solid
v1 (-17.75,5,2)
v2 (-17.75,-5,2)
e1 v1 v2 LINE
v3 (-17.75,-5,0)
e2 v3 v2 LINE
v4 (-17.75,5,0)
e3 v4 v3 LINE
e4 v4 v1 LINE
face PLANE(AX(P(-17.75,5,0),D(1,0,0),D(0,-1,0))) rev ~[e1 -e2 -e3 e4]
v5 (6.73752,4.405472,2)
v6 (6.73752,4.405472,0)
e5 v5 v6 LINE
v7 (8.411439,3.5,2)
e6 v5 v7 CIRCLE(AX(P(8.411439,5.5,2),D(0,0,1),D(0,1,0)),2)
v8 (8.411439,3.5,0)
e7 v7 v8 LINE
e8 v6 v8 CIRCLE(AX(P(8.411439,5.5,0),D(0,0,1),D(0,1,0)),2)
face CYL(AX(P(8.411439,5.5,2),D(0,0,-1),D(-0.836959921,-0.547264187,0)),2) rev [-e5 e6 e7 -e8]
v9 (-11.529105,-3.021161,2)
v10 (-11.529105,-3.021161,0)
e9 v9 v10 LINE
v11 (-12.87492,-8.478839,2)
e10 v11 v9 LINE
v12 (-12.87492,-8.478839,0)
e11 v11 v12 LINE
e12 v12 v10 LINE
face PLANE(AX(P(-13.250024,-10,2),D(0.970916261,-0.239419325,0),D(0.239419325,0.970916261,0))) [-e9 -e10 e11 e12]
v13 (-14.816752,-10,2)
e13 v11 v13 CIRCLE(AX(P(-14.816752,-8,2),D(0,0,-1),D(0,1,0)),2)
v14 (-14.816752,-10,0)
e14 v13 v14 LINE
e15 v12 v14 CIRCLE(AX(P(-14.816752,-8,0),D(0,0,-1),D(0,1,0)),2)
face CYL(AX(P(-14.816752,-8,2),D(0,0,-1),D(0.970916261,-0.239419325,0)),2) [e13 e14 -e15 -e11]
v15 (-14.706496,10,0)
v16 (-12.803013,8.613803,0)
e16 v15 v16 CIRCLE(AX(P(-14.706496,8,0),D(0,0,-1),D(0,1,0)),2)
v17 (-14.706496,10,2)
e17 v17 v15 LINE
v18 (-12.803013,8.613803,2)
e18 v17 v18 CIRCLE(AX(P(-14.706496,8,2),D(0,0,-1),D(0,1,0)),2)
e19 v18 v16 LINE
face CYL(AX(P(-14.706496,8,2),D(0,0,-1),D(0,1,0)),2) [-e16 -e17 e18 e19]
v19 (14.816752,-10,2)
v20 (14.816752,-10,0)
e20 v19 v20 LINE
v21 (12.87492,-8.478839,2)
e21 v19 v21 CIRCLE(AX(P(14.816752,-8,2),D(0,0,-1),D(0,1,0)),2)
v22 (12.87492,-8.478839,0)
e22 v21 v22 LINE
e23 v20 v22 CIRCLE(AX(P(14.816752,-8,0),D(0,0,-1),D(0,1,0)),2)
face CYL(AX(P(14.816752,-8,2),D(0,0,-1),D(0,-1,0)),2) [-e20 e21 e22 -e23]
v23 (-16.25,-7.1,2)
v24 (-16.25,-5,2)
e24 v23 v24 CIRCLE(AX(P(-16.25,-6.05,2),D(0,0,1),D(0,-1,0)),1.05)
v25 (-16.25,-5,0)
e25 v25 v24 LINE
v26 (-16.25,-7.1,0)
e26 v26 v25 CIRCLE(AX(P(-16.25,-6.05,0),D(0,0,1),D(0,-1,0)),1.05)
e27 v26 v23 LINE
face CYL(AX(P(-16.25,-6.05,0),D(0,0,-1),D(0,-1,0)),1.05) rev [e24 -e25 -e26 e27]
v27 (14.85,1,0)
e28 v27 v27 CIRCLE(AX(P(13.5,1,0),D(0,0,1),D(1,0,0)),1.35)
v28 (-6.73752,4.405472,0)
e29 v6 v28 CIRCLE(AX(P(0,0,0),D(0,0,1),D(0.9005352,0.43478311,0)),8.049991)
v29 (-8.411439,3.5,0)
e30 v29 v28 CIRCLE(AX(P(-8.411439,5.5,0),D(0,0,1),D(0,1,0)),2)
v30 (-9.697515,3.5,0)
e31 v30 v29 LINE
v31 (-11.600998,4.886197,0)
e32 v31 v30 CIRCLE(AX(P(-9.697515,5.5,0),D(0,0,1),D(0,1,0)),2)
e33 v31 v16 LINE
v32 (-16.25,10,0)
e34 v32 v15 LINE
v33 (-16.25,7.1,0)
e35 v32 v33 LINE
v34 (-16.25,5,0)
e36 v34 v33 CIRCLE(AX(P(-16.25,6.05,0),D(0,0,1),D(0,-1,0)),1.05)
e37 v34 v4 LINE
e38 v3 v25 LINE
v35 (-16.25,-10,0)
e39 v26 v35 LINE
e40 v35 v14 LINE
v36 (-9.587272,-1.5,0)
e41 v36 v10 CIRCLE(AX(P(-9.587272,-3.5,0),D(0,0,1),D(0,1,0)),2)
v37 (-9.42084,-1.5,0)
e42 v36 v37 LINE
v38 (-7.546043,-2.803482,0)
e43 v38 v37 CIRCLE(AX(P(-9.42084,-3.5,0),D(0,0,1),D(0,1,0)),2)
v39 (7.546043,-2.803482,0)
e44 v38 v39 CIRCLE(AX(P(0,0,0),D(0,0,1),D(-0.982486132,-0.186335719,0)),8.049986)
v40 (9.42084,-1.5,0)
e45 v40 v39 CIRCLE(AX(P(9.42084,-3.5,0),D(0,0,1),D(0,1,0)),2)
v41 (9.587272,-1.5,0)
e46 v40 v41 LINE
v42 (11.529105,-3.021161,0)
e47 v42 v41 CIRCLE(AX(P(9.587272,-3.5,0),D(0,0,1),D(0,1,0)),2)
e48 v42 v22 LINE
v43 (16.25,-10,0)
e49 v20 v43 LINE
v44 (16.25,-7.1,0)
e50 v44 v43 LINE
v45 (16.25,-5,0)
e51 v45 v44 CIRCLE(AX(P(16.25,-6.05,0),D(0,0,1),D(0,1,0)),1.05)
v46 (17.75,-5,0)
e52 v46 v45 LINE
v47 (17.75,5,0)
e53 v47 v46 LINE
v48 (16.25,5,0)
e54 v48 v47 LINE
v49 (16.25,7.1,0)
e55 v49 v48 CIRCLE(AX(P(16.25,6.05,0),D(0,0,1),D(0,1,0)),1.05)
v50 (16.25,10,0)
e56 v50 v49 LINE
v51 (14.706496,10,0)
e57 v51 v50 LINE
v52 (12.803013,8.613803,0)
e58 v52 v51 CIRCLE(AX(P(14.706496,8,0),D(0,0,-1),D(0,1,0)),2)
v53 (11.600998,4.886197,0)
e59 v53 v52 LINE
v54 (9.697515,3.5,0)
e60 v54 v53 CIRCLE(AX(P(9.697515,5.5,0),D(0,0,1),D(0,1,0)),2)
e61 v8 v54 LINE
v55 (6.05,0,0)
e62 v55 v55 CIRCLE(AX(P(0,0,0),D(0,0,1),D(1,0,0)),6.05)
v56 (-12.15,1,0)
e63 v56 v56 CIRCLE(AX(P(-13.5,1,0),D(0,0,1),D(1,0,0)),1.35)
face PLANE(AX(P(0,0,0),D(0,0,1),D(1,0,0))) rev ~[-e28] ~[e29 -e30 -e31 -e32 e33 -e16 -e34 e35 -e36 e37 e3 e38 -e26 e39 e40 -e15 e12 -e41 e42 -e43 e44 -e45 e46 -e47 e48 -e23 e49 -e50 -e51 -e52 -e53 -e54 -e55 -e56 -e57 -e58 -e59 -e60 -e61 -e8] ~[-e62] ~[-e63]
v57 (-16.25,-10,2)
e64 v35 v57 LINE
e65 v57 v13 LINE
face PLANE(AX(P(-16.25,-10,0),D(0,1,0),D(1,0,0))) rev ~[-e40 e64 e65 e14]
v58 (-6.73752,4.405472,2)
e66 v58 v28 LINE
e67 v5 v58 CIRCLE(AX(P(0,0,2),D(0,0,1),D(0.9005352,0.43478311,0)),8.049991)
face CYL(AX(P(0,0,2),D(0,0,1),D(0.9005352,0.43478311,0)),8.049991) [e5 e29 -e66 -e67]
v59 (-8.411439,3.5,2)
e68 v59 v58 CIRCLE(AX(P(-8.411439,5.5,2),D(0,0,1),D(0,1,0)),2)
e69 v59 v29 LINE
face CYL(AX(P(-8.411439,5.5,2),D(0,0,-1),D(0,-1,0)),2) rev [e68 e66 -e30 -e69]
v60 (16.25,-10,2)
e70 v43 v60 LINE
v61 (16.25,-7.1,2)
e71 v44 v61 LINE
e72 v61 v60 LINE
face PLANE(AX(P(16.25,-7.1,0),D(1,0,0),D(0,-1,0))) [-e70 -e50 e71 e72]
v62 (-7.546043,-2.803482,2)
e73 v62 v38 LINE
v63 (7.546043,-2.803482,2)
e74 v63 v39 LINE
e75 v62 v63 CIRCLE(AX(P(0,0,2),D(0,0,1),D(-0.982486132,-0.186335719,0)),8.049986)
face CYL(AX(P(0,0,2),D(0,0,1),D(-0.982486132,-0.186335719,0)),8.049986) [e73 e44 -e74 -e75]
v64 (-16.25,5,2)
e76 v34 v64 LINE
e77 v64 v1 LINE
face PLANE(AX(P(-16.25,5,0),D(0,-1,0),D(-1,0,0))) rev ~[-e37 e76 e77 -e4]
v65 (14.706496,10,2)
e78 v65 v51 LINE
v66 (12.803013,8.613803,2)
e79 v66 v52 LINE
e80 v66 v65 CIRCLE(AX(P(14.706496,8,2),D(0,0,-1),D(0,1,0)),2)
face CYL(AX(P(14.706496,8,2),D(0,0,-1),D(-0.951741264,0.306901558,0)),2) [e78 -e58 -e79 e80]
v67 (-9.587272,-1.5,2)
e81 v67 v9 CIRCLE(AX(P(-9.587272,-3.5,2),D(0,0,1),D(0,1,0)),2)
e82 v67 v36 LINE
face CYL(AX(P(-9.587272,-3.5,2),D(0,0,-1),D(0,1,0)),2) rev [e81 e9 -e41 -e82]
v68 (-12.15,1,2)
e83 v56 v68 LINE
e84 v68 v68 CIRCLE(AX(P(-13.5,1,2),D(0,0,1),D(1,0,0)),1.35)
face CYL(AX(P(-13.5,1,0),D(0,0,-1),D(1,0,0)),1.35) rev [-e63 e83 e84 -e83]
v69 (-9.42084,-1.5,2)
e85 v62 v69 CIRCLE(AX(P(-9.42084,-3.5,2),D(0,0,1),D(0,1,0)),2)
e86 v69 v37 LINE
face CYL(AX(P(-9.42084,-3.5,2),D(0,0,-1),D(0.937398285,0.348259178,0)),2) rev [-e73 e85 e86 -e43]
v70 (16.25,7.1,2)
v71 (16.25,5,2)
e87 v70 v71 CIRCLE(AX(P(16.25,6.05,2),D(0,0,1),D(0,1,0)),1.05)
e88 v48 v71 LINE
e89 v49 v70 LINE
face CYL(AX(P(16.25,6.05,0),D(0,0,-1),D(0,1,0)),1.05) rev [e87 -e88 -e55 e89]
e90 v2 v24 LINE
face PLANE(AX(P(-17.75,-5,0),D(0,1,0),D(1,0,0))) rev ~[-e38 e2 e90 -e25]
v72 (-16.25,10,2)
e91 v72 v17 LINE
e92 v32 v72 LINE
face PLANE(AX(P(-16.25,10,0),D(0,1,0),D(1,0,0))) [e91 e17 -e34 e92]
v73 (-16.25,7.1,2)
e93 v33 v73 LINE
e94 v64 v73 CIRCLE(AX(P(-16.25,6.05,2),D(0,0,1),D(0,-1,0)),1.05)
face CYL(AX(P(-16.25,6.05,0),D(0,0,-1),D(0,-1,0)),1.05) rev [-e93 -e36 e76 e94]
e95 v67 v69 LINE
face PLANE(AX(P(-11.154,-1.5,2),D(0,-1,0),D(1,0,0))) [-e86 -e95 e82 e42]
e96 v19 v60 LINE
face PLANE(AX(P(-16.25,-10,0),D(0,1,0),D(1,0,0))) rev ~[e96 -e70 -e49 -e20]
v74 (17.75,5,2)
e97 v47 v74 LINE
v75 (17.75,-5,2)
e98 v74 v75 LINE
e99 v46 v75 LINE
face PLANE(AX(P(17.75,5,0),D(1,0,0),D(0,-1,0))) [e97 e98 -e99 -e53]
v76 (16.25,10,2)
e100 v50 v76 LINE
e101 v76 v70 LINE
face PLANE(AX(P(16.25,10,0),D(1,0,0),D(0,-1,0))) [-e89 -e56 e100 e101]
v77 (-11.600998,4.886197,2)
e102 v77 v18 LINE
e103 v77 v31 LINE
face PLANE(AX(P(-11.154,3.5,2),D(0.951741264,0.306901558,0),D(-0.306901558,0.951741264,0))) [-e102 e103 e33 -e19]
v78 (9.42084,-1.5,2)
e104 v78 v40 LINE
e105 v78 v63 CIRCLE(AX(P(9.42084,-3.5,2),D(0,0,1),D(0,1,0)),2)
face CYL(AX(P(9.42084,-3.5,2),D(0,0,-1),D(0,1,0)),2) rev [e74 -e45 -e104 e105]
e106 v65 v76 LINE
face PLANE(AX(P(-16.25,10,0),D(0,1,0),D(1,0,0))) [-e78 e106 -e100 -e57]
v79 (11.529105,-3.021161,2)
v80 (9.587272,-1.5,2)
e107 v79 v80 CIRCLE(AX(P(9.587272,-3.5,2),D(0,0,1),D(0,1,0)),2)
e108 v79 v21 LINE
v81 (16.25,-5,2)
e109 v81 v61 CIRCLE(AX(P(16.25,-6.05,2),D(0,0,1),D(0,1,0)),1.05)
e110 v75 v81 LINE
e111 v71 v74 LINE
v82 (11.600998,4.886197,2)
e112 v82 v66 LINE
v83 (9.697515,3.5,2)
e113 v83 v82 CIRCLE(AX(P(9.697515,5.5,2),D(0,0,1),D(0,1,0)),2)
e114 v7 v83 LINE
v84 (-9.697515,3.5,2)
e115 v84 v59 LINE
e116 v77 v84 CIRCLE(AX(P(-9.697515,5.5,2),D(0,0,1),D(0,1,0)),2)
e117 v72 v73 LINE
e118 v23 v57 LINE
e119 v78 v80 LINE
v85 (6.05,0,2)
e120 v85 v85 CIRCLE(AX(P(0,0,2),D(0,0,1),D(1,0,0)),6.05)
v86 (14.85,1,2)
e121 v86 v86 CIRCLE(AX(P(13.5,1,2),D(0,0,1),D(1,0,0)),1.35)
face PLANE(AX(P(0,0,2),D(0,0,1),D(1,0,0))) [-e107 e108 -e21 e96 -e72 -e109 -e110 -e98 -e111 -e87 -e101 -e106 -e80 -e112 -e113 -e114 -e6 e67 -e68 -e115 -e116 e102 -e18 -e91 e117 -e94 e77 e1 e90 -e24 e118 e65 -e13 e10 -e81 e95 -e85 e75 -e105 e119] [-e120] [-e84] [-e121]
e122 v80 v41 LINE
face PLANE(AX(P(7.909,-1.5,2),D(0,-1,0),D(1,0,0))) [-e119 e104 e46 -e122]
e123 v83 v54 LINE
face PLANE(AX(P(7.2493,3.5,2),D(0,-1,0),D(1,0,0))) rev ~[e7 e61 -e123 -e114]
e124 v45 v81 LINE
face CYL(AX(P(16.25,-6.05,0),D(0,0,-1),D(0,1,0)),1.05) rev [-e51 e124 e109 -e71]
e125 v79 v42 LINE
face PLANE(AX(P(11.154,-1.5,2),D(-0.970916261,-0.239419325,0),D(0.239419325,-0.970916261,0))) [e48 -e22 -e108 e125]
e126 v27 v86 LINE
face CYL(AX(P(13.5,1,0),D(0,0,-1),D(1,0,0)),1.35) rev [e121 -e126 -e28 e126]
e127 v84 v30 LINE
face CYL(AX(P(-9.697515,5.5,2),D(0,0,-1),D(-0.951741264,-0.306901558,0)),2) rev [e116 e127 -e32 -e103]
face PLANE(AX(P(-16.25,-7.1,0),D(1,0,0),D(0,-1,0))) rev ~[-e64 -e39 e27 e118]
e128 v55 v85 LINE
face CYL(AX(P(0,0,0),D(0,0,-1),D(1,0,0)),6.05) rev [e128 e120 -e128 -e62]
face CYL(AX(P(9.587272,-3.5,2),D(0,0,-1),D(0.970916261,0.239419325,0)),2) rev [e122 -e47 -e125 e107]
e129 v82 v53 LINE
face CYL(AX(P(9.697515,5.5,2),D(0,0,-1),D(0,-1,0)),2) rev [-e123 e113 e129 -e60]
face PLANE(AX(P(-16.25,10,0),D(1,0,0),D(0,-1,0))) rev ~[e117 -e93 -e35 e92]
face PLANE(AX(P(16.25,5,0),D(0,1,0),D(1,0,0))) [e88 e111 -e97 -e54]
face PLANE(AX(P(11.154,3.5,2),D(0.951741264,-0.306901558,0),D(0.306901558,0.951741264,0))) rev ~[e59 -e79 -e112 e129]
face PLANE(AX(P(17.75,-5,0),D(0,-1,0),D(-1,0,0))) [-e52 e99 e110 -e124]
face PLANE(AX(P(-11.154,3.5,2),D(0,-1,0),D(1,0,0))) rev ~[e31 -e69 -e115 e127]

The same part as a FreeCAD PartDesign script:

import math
import FreeCAD as App
import Part
import Sketcher
Q = App.Units.Quantity


def edges_at(feature, points):
    """Names of the edges that pass closest to the given points."""
    edges = feature.Shape.Edges
    near = lambda p: min(range(len(edges)), key=lambda i: edges[i].distToShape(Part.Vertex(*p))[0])
    return sorted({f"Edge{near(p) + 1}" for p in points})

doc = App.newDocument("Part")
params = doc.addObject("Spreadsheet::Sheet", "Params")
for row, (alias, value) in enumerate([
    ("sketch1_diameter", "2.7 mm"),
    ("sketch1_diameter2", "12.1 mm"),
    ("sketch1_height", "10 mm"),
    ("sketch1_radius", "1.05 mm"),
    ("sketch1_width", "32.5 mm"),
    ("pad1_length", "2 mm"),
    ("sketch2_radius", "8.05 mm"),
    ("sketch2_width", "26.5 mm"),
    ("pocket1_length", "10 mm"),
    ("fillet_radius", "2 mm"),
], start=1):
    params.set(f"A{row}", alias)
    params.set(f"B{row}", "=" + value)
    params.setAlias(f"B{row}", alias)

body = doc.addObject("PartDesign::Body", "Body")

# Sketch on XY plane
sketch1 = doc.addObject("Sketcher::SketchObject", "Sketch")
body.addObject(sketch1)
sketch1.AttachmentSupport = (doc.XY_Plane, [""])
sketch1.MapMode = "FlatFace"
sketch1.addGeometry([
    Part.LineSegment(App.Vector(16.2, 10, 0), App.Vector(-16.2, 10, 0)),  # 0
    Part.LineSegment(App.Vector(-16.2, 10, 0), App.Vector(-16.2, 7.1, 0)),  # 1
    Part.ArcOfCircle(Part.Circle(App.Vector(-16.2, 6, 0), App.Vector(0, 0, 1), 1), math.radians(-90), math.radians(90)),  # 2
    Part.LineSegment(App.Vector(-16.2, 5, 0), App.Vector(-17.8, 5, 0)),  # 3
    Part.LineSegment(App.Vector(-17.8, 5, 0), App.Vector(-17.8, -5, 0)),  # 4
    Part.LineSegment(App.Vector(-17.8, -5, 0), App.Vector(-16.2, -5, 0)),  # 5
    Part.ArcOfCircle(Part.Circle(App.Vector(-16.2, -6, 0), App.Vector(0, 0, 1), 1), math.radians(-90), math.radians(90)),  # 6
    Part.LineSegment(App.Vector(-16.2, -7.1, 0), App.Vector(-16.2, -10, 0)),  # 7
    Part.LineSegment(App.Vector(-16.2, -10, 0), App.Vector(16.2, -10, 0)),  # 8
    Part.LineSegment(App.Vector(16.2, -10, 0), App.Vector(16.2, -7.1, 0)),  # 9
    Part.ArcOfCircle(Part.Circle(App.Vector(16.2, -6, 0), App.Vector(0, 0, 1), 1), math.radians(90), math.radians(270)),  # 10
    Part.LineSegment(App.Vector(16.2, -5, 0), App.Vector(17.8, -5, 0)),  # 11
    Part.LineSegment(App.Vector(17.8, -5, 0), App.Vector(17.8, 5, 0)),  # 12
    Part.LineSegment(App.Vector(17.8, 5, 0), App.Vector(16.2, 5, 0)),  # 13
    Part.ArcOfCircle(Part.Circle(App.Vector(16.2, 6, 0), App.Vector(0, 0, 1), 1), math.radians(90), math.radians(270)),  # 14
    Part.LineSegment(App.Vector(16.2, 7.1, 0), App.Vector(16.2, 10, 0)),  # 15
    Part.Circle(App.Vector(-13.5, 1, 0), App.Vector(0, 0, 1), 1.4),  # 16
    Part.Circle(App.Vector(0, 0, 0), App.Vector(0, 0, 1), 6),  # 17
    Part.Circle(App.Vector(13.5, 1, 0), App.Vector(0, 0, 1), 1.4),  # 18
], False)
sketch1.addConstraint([
    Sketcher.Constraint("Coincident", 0, 2, 1, 1),
    Sketcher.Constraint("Coincident", 1, 2, 2, 2),
    Sketcher.Constraint("Tangent", 2, 1, 3, 1),
    Sketcher.Constraint("Coincident", 3, 2, 4, 1),
    Sketcher.Constraint("Coincident", 4, 2, 5, 1),
    Sketcher.Constraint("Tangent", 5, 2, 6, 2),
    Sketcher.Constraint("Coincident", 6, 1, 7, 1),
    Sketcher.Constraint("Coincident", 7, 2, 8, 1),
    Sketcher.Constraint("Coincident", 8, 2, 9, 1),
    Sketcher.Constraint("Coincident", 9, 2, 10, 2),
    Sketcher.Constraint("Tangent", 10, 1, 11, 1),
    Sketcher.Constraint("Coincident", 11, 2, 12, 1),
    Sketcher.Constraint("Coincident", 12, 2, 13, 1),
    Sketcher.Constraint("Tangent", 13, 2, 14, 2),
    Sketcher.Constraint("Coincident", 14, 1, 15, 1),
    Sketcher.Constraint("Coincident", 15, 2, 0, 1),
    Sketcher.Constraint("Horizontal", 0),
    Sketcher.Constraint("Vertical", 1),
    Sketcher.Constraint("Horizontal", 3),
    Sketcher.Constraint("Vertical", 4),
    Sketcher.Constraint("Horizontal", 5),
    Sketcher.Constraint("Vertical", 7),
    Sketcher.Constraint("Horizontal", 8),
    Sketcher.Constraint("Vertical", 9),
    Sketcher.Constraint("Horizontal", 11),
    Sketcher.Constraint("Vertical", 12),
    Sketcher.Constraint("Horizontal", 13),
    Sketcher.Constraint("Vertical", 15),
    Sketcher.Constraint("Coincident", 17, 3, -1, 1),
    Sketcher.Constraint("Equal", 2, 6),
    Sketcher.Constraint("Equal", 6, 10),
    Sketcher.Constraint("Equal", 10, 14),
    Sketcher.Constraint("Equal", 16, 18),
    Sketcher.Constraint("Symmetric", 2, 3, 10, 3, -1, 1),
    Sketcher.Constraint("Symmetric", 6, 3, 14, 3, -1, 1),
    Sketcher.Constraint("Symmetric", 0, 2, 8, 2, -1, 1),
    Sketcher.Constraint("Symmetric", 6, 3, 10, 3, -2),
    Sketcher.Constraint("Symmetric", 16, 3, 18, 3, -2),
    Sketcher.Constraint("Vertical", 6, 3, 0, 2),
    Sketcher.Constraint("Vertical", 5, 2, 6, 1),
    Sketcher.Constraint("Vertical", 13, 2, 14, 1),
    Sketcher.Constraint("Equal", 5, 11),
    Sketcher.Constraint("Diameter", 16, Q("2.7 mm")),
    Sketcher.Constraint("Diameter", 17, Q("12.1 mm")),
    Sketcher.Constraint("DistanceY", 4, 2, 4, 1, Q("10 mm")),
    Sketcher.Constraint("Radius", 2, Q("1.05 mm")),
    Sketcher.Constraint("DistanceX", 0, 2, 0, 1, Q("32.5 mm")),
    Sketcher.Constraint("DistanceX", 3, 2, 3, 1, Q("1.5 mm")),
    Sketcher.Constraint("DistanceY", -1, 1, 16, 3, Q("1 mm")),
    Sketcher.Constraint("DistanceY", -1, 1, 0, 2, Q("10 mm")),
    Sketcher.Constraint("DistanceX", 16, 3, 18, 3, Q("27 mm")),
])
sketch1.setExpression("Constraints[42]", "Params.sketch1_diameter")
sketch1.setExpression("Constraints[43]", "Params.sketch1_diameter2")
sketch1.setExpression("Constraints[44]", "Params.sketch1_height")
sketch1.setExpression("Constraints[45]", "Params.sketch1_radius")
sketch1.setExpression("Constraints[46]", "Params.sketch1_width")
pad1 = doc.addObject("PartDesign::Pad", "Pad")
body.addObject(pad1)
pad1.Profile = sketch1
pad1.setExpression("Length", "Params.pad1_length")

# Sketch on XY plane
sketch2 = doc.addObject("Sketcher::SketchObject", "Sketch001")
body.addObject(sketch2)
sketch2.AttachmentSupport = (doc.XY_Plane, [""])
sketch2.MapMode = "FlatFace"
sketch2.AttachmentOffset = App.Placement(App.Vector(0, 0, 2), App.Rotation())
sketch2.addGeometry([
    Part.LineSegment(App.Vector(11.2, 3.5, 0), App.Vector(13.3, 10, 0)),  # 0
    Part.LineSegment(App.Vector(13.3, 10, 0), App.Vector(-13.3, 10, 0)),  # 1
    Part.LineSegment(App.Vector(-13.3, 10, 0), App.Vector(-11.2, 3.5, 0)),  # 2
    Part.LineSegment(App.Vector(-11.2, 3.5, 0), App.Vector(-7.2, 3.5, 0)),  # 3
    Part.ArcOfCircle(Part.Circle(App.Vector(0, 0, 0), App.Vector(0, 0, 1), 8), math.radians(26), math.radians(154)),  # 4
    Part.LineSegment(App.Vector(7.2, 3.5, 0), App.Vector(11.2, 3.5, 0)),  # 5
    Part.LineSegment(App.Vector(-7.9, -1.5, 0), App.Vector(-11.2, -1.5, 0)),  # 6
    Part.LineSegment(App.Vector(-11.2, -1.5, 0), App.Vector(-13.3, -10, 0)),  # 7
    Part.LineSegment(App.Vector(-13.3, -10, 0), App.Vector(13.3, -10, 0)),  # 8
    Part.LineSegment(App.Vector(13.3, -10, 0), App.Vector(11.2, -1.5, 0)),  # 9
    Part.LineSegment(App.Vector(11.2, -1.5, 0), App.Vector(7.9, -1.5, 0)),  # 10
    Part.ArcOfCircle(Part.Circle(App.Vector(0, 0, 0), App.Vector(0, 0, 1), 8), math.radians(-169), math.radians(-11)),  # 11
], False)
sketch2.addConstraint([
    Sketcher.Constraint("Coincident", 0, 2, 1, 1),
    Sketcher.Constraint("Coincident", 1, 2, 2, 1),
    Sketcher.Constraint("Coincident", 2, 2, 3, 1),
    Sketcher.Constraint("Coincident", 3, 2, 4, 2),
    Sketcher.Constraint("Coincident", 4, 1, 5, 1),
    Sketcher.Constraint("Coincident", 5, 2, 0, 1),
    Sketcher.Constraint("Coincident", 6, 2, 7, 1),
    Sketcher.Constraint("Coincident", 7, 2, 8, 1),
    Sketcher.Constraint("Coincident", 8, 2, 9, 1),
    Sketcher.Constraint("Coincident", 9, 2, 10, 1),
    Sketcher.Constraint("Coincident", 10, 2, 11, 2),
    Sketcher.Constraint("Coincident", 11, 1, 6, 1),
    Sketcher.Constraint("Horizontal", 1),
    Sketcher.Constraint("Horizontal", 3),
    Sketcher.Constraint("Horizontal", 5),
    Sketcher.Constraint("Horizontal", 6),
    Sketcher.Constraint("Horizontal", 8),
    Sketcher.Constraint("Horizontal", 10),
    Sketcher.Constraint("Coincident", 4, 3, -1, 1),
    Sketcher.Constraint("Coincident", 11, 3, -1, 1),
    Sketcher.Constraint("Equal", 4, 11),
    Sketcher.Constraint("Symmetric", 0, 2, 7, 2, -1, 1),
    Sketcher.Constraint("Symmetric", 2, 2, 5, 2, -2),
    Sketcher.Constraint("Symmetric", 6, 2, 9, 2, -2),
    Sketcher.Constraint("Vertical", 2, 2, 6, 2),
    Sketcher.Constraint("Vertical", 1, 2, 7, 2),
    Sketcher.Constraint("Vertical", 0, 2, 8, 2),
    Sketcher.Constraint("Radius", 4, Q("8.05 mm")),
    Sketcher.Constraint("DistanceX", 1, 2, 1, 1, Q("26.5 mm")),
    Sketcher.Constraint("DistanceY", -1, 1, 0, 2, Q("10 mm")),
    Sketcher.Constraint("DistanceY", 6, 2, 2, 2, Q("5 mm")),
    Sketcher.Constraint("DistanceY", -1, 1, 2, 2, Q("3.5 mm")),
    Sketcher.Constraint("DistanceX", 6, 2, 6, 1, Q("3.245 mm")),
])
sketch2.setExpression("Constraints[27]", "Params.sketch2_radius")
sketch2.setExpression("Constraints[28]", "Params.sketch2_width")
pocket1 = doc.addObject("PartDesign::Pocket", "Pocket")
body.addObject(pocket1)
pocket1.Profile = sketch2
pocket1.setExpression("Length", "Params.pocket1_length")
doc.recompute()

fillet = doc.addObject("PartDesign::Fillet", "Fillet")
body.addObject(fillet)
fillet.Base = (pocket1, edges_at(pocket1, [
    (-11.154, 3.5, 1),
    (-7.249, 3.5, 1),
    (7.909, -1.5, 1),
    (7.249, 3.5, 1),
    (11.154, 3.5, 1),
    (-7.909, -1.5, 1),
    (-11.154, -1.5, 1),
    (11.154, -1.5, 1),
    (-13.25, -10, 1),
    (-13.25, 10, 1),
    (13.25, -10, 1),
    (13.25, 10, 1),
]))
fillet.setExpression("Radius", "Params.fillet_radius")

doc.recompute()
